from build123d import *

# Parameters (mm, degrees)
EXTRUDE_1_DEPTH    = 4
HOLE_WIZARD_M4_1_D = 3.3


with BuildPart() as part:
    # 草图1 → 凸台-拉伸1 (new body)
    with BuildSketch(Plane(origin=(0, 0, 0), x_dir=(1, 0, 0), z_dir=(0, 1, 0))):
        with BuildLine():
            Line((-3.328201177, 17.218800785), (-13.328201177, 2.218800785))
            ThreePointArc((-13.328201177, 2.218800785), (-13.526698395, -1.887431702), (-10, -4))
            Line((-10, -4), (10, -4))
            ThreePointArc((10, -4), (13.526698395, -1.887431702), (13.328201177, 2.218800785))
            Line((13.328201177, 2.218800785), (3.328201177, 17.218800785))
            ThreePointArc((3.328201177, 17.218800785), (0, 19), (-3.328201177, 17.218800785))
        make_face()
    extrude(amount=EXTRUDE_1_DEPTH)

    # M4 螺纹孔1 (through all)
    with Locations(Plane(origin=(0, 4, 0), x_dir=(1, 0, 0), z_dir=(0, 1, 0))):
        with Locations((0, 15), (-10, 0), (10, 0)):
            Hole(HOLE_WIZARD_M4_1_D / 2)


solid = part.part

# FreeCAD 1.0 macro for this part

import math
import FreeCAD as App
import Part
import Sketcher

V = App.Vector
Q = App.Units.Quantity

doc = App.newDocument("Part")
params = doc.addObject("Spreadsheet::Sheet", "Params")
for row, (alias, value) in enumerate([
    ("sketch1_radius", "4 mm"),
    ("sketch1_width", "20 mm"),
    ("pad1_length", "4 mm"),
    ("sketch2_diameter", "3.3 mm"),
    ("hole_diameter", "3.3 mm"),
], start=1):
    params.set(f"A{row}", alias)
    params.set(f"B{row}", "=" + value)
    params.setAlias(f"B{row}", alias)

body = doc.addObject("PartDesign::Body", "Body")

# Sketch on XZ plane
sketch1 = body.newObject("Sketcher::SketchObject", "Sketch")
sketch1.AttachmentSupport = (doc.getObject("XZ_Plane"), [""])
sketch1.MapMode = "FlatFace"
sketch1.addGeometry([
    Part.LineSegment(V(-3.3, -17.2, 0), V(-13.3, -2.2, 0)),  # 0
    Part.ArcOfCircle(Part.Circle(V(-10, 0, 0), V(0, 0, 1), 4), math.radians(90), math.radians(214)),  # 1
    Part.LineSegment(V(-10, 4, 0), V(10, 4, 0)),  # 2
    Part.ArcOfCircle(Part.Circle(V(10, 0, 0), V(0, 0, 1), 4), math.radians(-34), math.radians(90)),  # 3
    Part.LineSegment(V(13.3, -2.2, 0), V(3.3, -17.2, 0)),  # 4
    Part.ArcOfCircle(Part.Circle(V(0, -15, 0), V(0, 0, 1), 4), math.radians(-146), math.radians(-34)),  # 5
], False)
sketch1.addConstraint([
    Sketcher.Constraint("Tangent", 0, 2, 1, 2),
    Sketcher.Constraint("Tangent", 1, 1, 2, 1),
    Sketcher.Constraint("Tangent", 2, 2, 3, 2),
    Sketcher.Constraint("Tangent", 3, 1, 4, 1),
    Sketcher.Constraint("Tangent", 4, 2, 5, 2),
    Sketcher.Constraint("Tangent", 5, 1, 0, 1),
    Sketcher.Constraint("Horizontal", 2),
    Sketcher.Constraint("Equal", 1, 3),
    Sketcher.Constraint("Equal", 3, 5),
    Sketcher.Constraint("Symmetric", 1, 3, 3, 3, -1, 1),
    Sketcher.Constraint("PointOnObject", 5, 3, -2),
    Sketcher.Constraint("Radius", 1, Q("4 mm")),
    Sketcher.Constraint("DistanceX", 2, 1, 2, 2, Q("20 mm")),
    Sketcher.Constraint("DistanceY", 5, 3, -1, 1, Q("15 mm")),
])
sketch1.setExpression("Constraints[11]", "Params.sketch1_radius")
sketch1.setExpression("Constraints[12]", "Params.sketch1_width")
pad1 = body.newObject("PartDesign::Pad", "Pad")
pad1.Profile = sketch1
pad1.setExpression("Length", "Params.pad1_length")
pad1.Reversed = True

# Sketch on XZ plane
sketch2 = body.newObject("Sketcher::SketchObject", "Sketch001")
sketch2.AttachmentSupport = (doc.getObject("XZ_Plane"), [""])
sketch2.MapMode = "FlatFace"
sketch2.AttachmentOffset = App.Placement(V(0, 0, -4), App.Rotation())
sketch2.addGeometry([
    Part.Circle(V(0, -15, 0), V(0, 0, 1), 1.6),
    Part.Circle(V(-10, 0, 0), V(0, 0, 1), 1.6),
    Part.Circle(V(10, 0, 0), V(0, 0, 1), 1.6),
], False)
sketch2.addConstraint([
    Sketcher.Constraint("Equal", 0, 1),
    Sketcher.Constraint("Equal", 1, 2),
    Sketcher.Constraint("Symmetric", 1, 3, 2, 3, -1, 1),
    Sketcher.Constraint("PointOnObject", 0, 3, -2),
    Sketcher.Constraint("PointOnObject", 1, 3, -1),
    Sketcher.Constraint("Diameter", 0, Q("3.3 mm")),
    Sketcher.Constraint("DistanceY", 0, 3, -1, 1, Q("15 mm")),
    Sketcher.Constraint("DistanceX", 1, 3, -1, 1, Q("10 mm")),
])
sketch2.setExpression("Constraints[5]", "Params.sketch2_diameter")
doc.recompute()
hole = body.newObject("PartDesign::Hole", "Hole")
hole.Profile = sketch2
hole.ThreadType = "None"
hole.setExpression("Diameter", "Params.hole_diameter")
hole.DepthType = "ThroughAll"
hole.Reversed = True

doc.recompute()
